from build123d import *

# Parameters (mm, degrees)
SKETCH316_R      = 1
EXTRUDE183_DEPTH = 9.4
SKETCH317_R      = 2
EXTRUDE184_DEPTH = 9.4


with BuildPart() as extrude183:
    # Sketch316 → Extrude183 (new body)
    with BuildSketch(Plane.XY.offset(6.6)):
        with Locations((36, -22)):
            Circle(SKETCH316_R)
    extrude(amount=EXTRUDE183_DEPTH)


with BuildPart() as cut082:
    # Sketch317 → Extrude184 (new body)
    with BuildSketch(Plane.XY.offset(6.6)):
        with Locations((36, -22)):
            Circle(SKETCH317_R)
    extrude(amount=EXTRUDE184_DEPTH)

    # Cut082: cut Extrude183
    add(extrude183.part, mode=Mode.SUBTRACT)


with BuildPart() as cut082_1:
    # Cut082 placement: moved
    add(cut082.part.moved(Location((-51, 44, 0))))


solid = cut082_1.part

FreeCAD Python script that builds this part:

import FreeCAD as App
import Part
import Sketcher
Q = App.Units.Quantity

doc = App.newDocument("Part")
params = doc.addObject("Spreadsheet::Sheet", "Params")
for row, (alias, value) in enumerate([
    ("sketch1_diameter", "2 mm"),
    ("pad1_length", "9.4 mm"),
    ("sketch2_diameter", "4 mm"),
    ("pad2_length", "9.4 mm"),
], start=1):
    params.set(f"A{row}", alias)
    params.set(f"B{row}", "=" + value)
    params.setAlias(f"B{row}", alias)

body = doc.addObject("PartDesign::Body", "Body")

# Sketch on XY plane
sketch1 = body.newObject("Sketcher::SketchObject", "Sketch")
sketch1.AttachmentSupport = (doc.getObject("XY_Plane"), [""])
sketch1.MapMode = "FlatFace"
sketch1.AttachmentOffset = App.Placement(App.Vector(0, 0, 6.6), App.Rotation())
sketch1.addGeometry(Part.Circle(App.Vector(36, -22, 0), App.Vector(0, 0, 1), 1), False)
sketch1.addConstraint([
    Sketcher.Constraint("Diameter", 0, Q("2 mm")),
    Sketcher.Constraint("DistanceX", -1, 1, 0, 3, Q("36 mm")),
    Sketcher.Constraint("DistanceY", 0, 3, -1, 1, Q("22 mm")),
])
sketch1.setExpression("Constraints[0]", "Params.sketch1_diameter")
pad1 = body.newObject("PartDesign::Pad", "Pad")
pad1.Profile = sketch1
pad1.setExpression("Length", "Params.pad1_length")
body2 = doc.addObject("PartDesign::Body", "Body001")

# Sketch on XY plane
sketch2 = body2.newObject("Sketcher::SketchObject", "Sketch001")
sketch2.AttachmentSupport = (doc.getObject("XY_Plane001"), [""])
sketch2.MapMode = "FlatFace"
sketch2.AttachmentOffset = App.Placement(App.Vector(0, 0, 6.6), App.Rotation())
sketch2.addGeometry(Part.Circle(App.Vector(36, -22, 0), App.Vector(0, 0, 1), 2), False)
sketch2.addConstraint([
    Sketcher.Constraint("Diameter", 0, Q("4 mm")),
    Sketcher.Constraint("DistanceX", -1, 1, 0, 3, Q("36 mm")),
    Sketcher.Constraint("DistanceY", 0, 3, -1, 1, Q("22 mm")),
])
sketch2.setExpression("Constraints[0]", "Params.sketch2_diameter")
pad2 = body2.newObject("PartDesign::Pad", "Pad001")
pad2.Profile = sketch2
pad2.setExpression("Length", "Params.pad2_length")
doc.recompute()

boolean = body2.newObject("PartDesign::Boolean", "Boolean")
boolean.Type = "Cut"
boolean.addObjects([body])
body3 = doc.addObject("PartDesign::Body", "Body002")
doc.recompute()

body2.Placement = App.Placement(App.Vector(-51, 44, 0), App.Rotation(App.Vector(0, 0, 1), 0))
boolean2 = body3.newObject("PartDesign::Boolean", "Boolean001")
boolean2.Type = "Fuse"
boolean2.addObjects([body2])

doc.recompute()
